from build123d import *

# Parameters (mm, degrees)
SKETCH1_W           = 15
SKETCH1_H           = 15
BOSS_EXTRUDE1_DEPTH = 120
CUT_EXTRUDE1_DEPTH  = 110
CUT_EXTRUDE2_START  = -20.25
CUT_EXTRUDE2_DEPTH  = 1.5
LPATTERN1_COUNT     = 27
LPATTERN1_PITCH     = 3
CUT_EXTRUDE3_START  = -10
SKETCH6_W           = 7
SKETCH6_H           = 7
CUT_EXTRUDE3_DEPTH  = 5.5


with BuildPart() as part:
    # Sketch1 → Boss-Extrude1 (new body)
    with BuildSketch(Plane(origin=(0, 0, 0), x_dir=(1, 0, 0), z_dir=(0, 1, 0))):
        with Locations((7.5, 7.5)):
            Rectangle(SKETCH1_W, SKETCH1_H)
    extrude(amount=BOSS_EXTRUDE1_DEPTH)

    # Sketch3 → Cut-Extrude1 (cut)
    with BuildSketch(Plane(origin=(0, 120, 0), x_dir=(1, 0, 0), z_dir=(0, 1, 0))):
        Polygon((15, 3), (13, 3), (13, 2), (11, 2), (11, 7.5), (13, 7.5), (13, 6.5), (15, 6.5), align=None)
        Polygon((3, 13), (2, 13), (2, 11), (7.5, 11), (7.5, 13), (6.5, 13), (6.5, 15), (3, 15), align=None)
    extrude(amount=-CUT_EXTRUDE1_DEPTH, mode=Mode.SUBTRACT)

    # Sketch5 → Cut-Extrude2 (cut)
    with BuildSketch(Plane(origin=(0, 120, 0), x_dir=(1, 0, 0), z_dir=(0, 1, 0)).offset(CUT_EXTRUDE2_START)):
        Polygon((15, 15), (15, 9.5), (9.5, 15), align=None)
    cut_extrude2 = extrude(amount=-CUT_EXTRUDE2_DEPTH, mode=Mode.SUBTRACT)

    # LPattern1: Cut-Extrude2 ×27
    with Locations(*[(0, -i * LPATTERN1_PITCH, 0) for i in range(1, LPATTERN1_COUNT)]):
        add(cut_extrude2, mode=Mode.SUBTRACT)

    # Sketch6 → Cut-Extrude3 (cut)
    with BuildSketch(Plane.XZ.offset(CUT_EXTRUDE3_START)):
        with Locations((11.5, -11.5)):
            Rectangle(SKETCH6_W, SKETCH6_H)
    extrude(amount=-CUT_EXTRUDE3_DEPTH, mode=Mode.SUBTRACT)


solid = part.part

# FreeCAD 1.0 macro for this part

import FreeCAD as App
import Part
import Sketcher
from FreeCAD import Vector
Q = App.Units.Quantity


def add_polygon(sketch, points):
    """Adds a closed chain of lines whose ends are joined by coincident constraints."""
    first, n = sketch.GeometryCount, len(points)
    for a, b in zip(points, points[1:] + points[:1]):
        sketch.addGeometry(Part.LineSegment(App.Vector(*a, 0), App.Vector(*b, 0)), False)
    for i in range(n):
        sketch.addConstraint(Sketcher.Constraint("Coincident", first + i, 2, first + (i + 1) % n, 1))

doc = App.newDocument("Part")
body = doc.addObject("PartDesign::Body", "Body")

# Sketch on XZ plane
sketch1 = body.newObject("Sketcher::SketchObject", "Sketch")
sketch1.AttachmentSupport = (doc.getObject("XZ_Plane"), [""])
sketch1.MapMode = "FlatFace"
add_polygon(sketch1, [(0, -15), (0, 0), (15, 0), (15, -15)])  # lines 0-3
sketch1.addConstraint([
    Sketcher.Constraint("Vertical", 0),
    Sketcher.Constraint("Horizontal", 1),
    Sketcher.Constraint("Vertical", 2),
    Sketcher.Constraint("Horizontal", 3),
    Sketcher.Constraint("Coincident", 0, 2, -1, 1),
    Sketcher.Constraint("Equal", 3, 0),
    Sketcher.Constraint("DistanceX", 1, 1, 1, 2, Q("15 mm")),
])
pad1 = body.newObject("PartDesign::Pad", "Pad")
pad1.Profile = sketch1
pad1.Length = 120
pad1.Reversed = True

# Sketch on XZ plane
sketch2 = body.newObject("Sketcher::SketchObject", "Sketch001")
sketch2.AttachmentSupport = (doc.getObject("XZ_Plane"), [""])
sketch2.MapMode = "FlatFace"
sketch2.AttachmentOffset = App.Placement(Vector(0, 0, -120), App.Rotation())
add_polygon(sketch2, [(13, -3), (15, -3), (15, -6.5), (13, -6.5), (13, -7.5), (11, -7.5), (11, -2), (13, -2)])  # lines 0-7
add_polygon(sketch2, [(3, -13), (2, -13), (2, -11), (7.5, -11), (7.5, -13), (6.5, -13), (6.5, -15), (3, -15)])  # lines 8-15
sketch2.addConstraint([
    Sketcher.Constraint("Horizontal", 0),
    Sketcher.Constraint("Vertical", 1),
    Sketcher.Constraint("Horizontal", 2),
    Sketcher.Constraint("Vertical", 3),
    Sketcher.Constraint("Horizontal", 4),
    Sketcher.Constraint("Vertical", 5),
    Sketcher.Constraint("Horizontal", 6),
    Sketcher.Constraint("Vertical", 7),
    Sketcher.Constraint("Horizontal", 8),
    Sketcher.Constraint("Vertical", 9),
    Sketcher.Constraint("Horizontal", 10),
    Sketcher.Constraint("Vertical", 11),
    Sketcher.Constraint("Horizontal", 12),
    Sketcher.Constraint("Vertical", 13),
    Sketcher.Constraint("Horizontal", 14),
    Sketcher.Constraint("Vertical", 15),
    Sketcher.Constraint("Horizontal", 8, 2, 11, 2),
    Sketcher.Constraint("Vertical", 3, 2, 6, 2),
    Sketcher.Constraint("Equal", 2, 4),
    Sketcher.Constraint("Equal", 8, 12),
    Sketcher.Constraint("Equal", 14, 1),
    Sketcher.Constraint("Equal", 12, 3),
    Sketcher.Constraint("Equal", 10, 5),
    Sketcher.Constraint("Equal", 6, 9),
    Sketcher.Constraint("Equal", 11, 13),
    Sketcher.Constraint("DistanceX", 0, 1, 0, 2, Q("2 mm")),
    Sketcher.Constraint("DistanceX", 8, 2, 8, 1, Q("1 mm")),
    Sketcher.Constraint("DistanceX", 10, 1, 10, 2, Q("5.5 mm")),
    Sketcher.Constraint("DistanceX", -1, 1, 0, 2, Q("15 mm")),
    Sketcher.Constraint("DistanceY", 0, 2, -1, 1, Q("3 mm")),
    Sketcher.Constraint("DistanceX", -1, 1, 8, 2, Q("2 mm")),
    Sketcher.Constraint("DistanceY", 8, 2, -1, 1, Q("13 mm")),
])
pocket1 = body.newObject("PartDesign::Pocket", "Pocket")
pocket1.Profile = sketch2
pocket1.Length = 110
pocket1.Reversed = True

# Sketch on XZ plane
sketch3 = body.newObject("Sketcher::SketchObject", "Sketch002")
sketch3.AttachmentSupport = (doc.getObject("XZ_Plane"), [""])
sketch3.MapMode = "FlatFace"
sketch3.AttachmentOffset = App.Placement(Vector(0, 0, -99.75), App.Rotation())
add_polygon(sketch3, [(15, -10), (15, -15), (10, -15)])  # lines 0-2
sketch3.addConstraint([
    Sketcher.Constraint("Vertical", 0),
    Sketcher.Constraint("Horizontal", 1),
    Sketcher.Constraint("Equal", 1, 0),
    Sketcher.Constraint("DistanceX", 1, 2, 1, 1, Q("5.5 mm")),
    Sketcher.Constraint("DistanceX", -1, 1, 0, 2, Q("15 mm")),
    Sketcher.Constraint("DistanceY", 0, 2, -1, 1, Q("15 mm")),
])
pocket2 = body.newObject("PartDesign::Pocket", "Pocket001")
pocket2.Profile = sketch3
pocket2.Length = 1.5
pocket2.Reversed = True
doc.recompute()

linearpattern = body.newObject("PartDesign::LinearPattern", "LinearPattern")
linearpattern.Originals = [pocket2]
linearpattern.Direction = (doc.getObject("Y_Axis"), [""])
linearpattern.Mode = "offset"
linearpattern.Offset = 3
linearpattern.Occurrences = 27
linearpattern.Reversed = True
body.Tip = linearpattern

# Sketch on XZ plane
sketch4 = body.newObject("Sketcher::SketchObject", "Sketch003")
sketch4.AttachmentSupport = (doc.getObject("XZ_Plane"), [""])
sketch4.MapMode = "FlatFace"
sketch4.AttachmentOffset = App.Placement(Vector(0, 0, -10), App.Rotation())
add_polygon(sketch4, [(8, -8), (8, -15), (15, -15), (15, -8)])  # lines 0-3
sketch4.addConstraint([
    Sketcher.Constraint("Vertical", 0),
    Sketcher.Constraint("Horizontal", 1),
    Sketcher.Constraint("Vertical", 2),
    Sketcher.Constraint("Horizontal", 3),
    Sketcher.Constraint("Equal", 3, 0),
    Sketcher.Constraint("DistanceX", 1, 1, 1, 2, Q("7 mm")),
    Sketcher.Constraint("DistanceX", -1, 1, 0, 2, Q("8 mm")),
    Sketcher.Constraint("DistanceY", 0, 2, -1, 1, Q("15 mm")),
])
pocket3 = body.newObject("PartDesign::Pocket", "Pocket002")
pocket3.Profile = sketch4
pocket3.Length = 5.5

doc.recompute()
